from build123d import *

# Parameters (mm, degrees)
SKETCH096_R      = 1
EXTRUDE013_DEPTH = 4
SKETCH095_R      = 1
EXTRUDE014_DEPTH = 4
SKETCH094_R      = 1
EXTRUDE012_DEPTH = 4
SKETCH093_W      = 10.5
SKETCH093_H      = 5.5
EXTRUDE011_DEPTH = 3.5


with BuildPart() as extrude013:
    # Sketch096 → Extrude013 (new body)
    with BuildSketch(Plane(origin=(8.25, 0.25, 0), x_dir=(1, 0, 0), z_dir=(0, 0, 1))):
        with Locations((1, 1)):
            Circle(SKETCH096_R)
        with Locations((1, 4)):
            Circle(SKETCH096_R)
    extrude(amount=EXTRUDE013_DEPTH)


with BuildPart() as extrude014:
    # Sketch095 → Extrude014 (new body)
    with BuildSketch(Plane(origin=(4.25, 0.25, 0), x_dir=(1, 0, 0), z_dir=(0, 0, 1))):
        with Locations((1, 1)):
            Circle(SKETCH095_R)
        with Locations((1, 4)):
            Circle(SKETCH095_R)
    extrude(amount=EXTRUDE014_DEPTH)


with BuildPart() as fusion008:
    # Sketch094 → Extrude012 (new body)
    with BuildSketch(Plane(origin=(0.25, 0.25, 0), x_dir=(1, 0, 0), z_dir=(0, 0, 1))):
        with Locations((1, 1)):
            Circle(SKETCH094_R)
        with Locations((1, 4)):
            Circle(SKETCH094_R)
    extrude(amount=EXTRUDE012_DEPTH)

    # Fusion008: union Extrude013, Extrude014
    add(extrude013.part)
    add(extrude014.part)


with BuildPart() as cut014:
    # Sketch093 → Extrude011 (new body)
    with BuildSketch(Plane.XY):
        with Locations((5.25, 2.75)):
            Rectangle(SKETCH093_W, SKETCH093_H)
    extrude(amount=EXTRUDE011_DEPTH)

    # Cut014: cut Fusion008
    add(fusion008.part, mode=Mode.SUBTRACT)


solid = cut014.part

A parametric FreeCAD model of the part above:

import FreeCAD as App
import Part
import Sketcher
from FreeCAD import Vector


def add_polygon(sketch, points):
    """Adds a closed chain of lines whose ends are joined by coincident constraints."""
    first, n = sketch.GeometryCount, len(points)
    for a, b in zip(points, points[1:] + points[:1]):
        sketch.addGeometry(Part.LineSegment(App.Vector(*a, 0), App.Vector(*b, 0)), False)
    for i in range(n):
        sketch.addConstraint(Sketcher.Constraint("Coincident", first + i, 2, first + (i + 1) % n, 1))

doc = App.newDocument("Part")
params = doc.addObject("Spreadsheet::Sheet", "Params")
for row, (alias, value) in enumerate([
    ("sketch1_diameter", "2 mm"),
    ("pad1_length", "4 mm"),
    ("sketch2_diameter", "2 mm"),
    ("pad2_length", "4 mm"),
    ("sketch3_diameter", "2 mm"),
    ("pad3_length", "4 mm"),
    ("sketch4_width", "10.5 mm"),
    ("sketch4_height", "5.5 mm"),
    ("pad4_length", "3.5 mm"),
], start=1):
    params.set(f"A{row}", alias)
    params.set(f"B{row}", "=" + value)
    params.setAlias(f"B{row}", alias)

body = doc.addObject("PartDesign::Body", "Body")
body.AllowCompound = True

# Sketch on XY plane
sketch1 = body.newObject("Sketcher::SketchObject", "Sketch")
sketch1.AttachmentSupport = (doc.getObject("XY_Plane"), [""])
sketch1.MapMode = "FlatFace"
sketch1.addGeometry(Part.Circle(Vector(9.25, 1.25, 0), Vector(0, 0, 1), 1), False)
sketch1.addGeometry(Part.Circle(Vector(9.25, 4.25, 0), Vector(0, 0, 1), 1), False)
sketch1.addConstraint(Sketcher.Constraint("Equal", 0, 1))
sketch1.addConstraint(Sketcher.Constraint("Vertical", 0, 3, 1, 3))
sketch1.addConstraint(Sketcher.Constraint("Diameter", 0, 2.0))
sketch1.addConstraint(Sketcher.Constraint("DistanceY", 0, 3, 1, 3, 3.0))
sketch1.addConstraint(Sketcher.Constraint("DistanceX", -1, 1, 0, 3, 9.25))
sketch1.addConstraint(Sketcher.Constraint("DistanceY", -1, 1, 0, 3, 1.25))
sketch1.setExpression("Constraints[2]", "Params.sketch1_diameter")
pad1 = body.newObject("PartDesign::Pad", "Pad")
pad1.Profile = sketch1
pad1.setExpression("Length", "Params.pad1_length")
body2 = doc.addObject("PartDesign::Body", "Body001")
body2.AllowCompound = True

# Sketch on XY plane
sketch2 = body2.newObject("Sketcher::SketchObject", "Sketch001")
sketch2.AttachmentSupport = (doc.getObject("XY_Plane001"), [""])
sketch2.MapMode = "FlatFace"
sketch2.addGeometry(Part.Circle(Vector(5.25, 1.25, 0), Vector(0, 0, 1), 1), False)
sketch2.addGeometry(Part.Circle(Vector(5.25, 4.25, 0), Vector(0, 0, 1), 1), False)
sketch2.addConstraint(Sketcher.Constraint("Equal", 0, 1))
sketch2.addConstraint(Sketcher.Constraint("Vertical", 0, 3, 1, 3))
sketch2.addConstraint(Sketcher.Constraint("Diameter", 0, 2.0))
sketch2.addConstraint(Sketcher.Constraint("DistanceY", 0, 3, 1, 3, 3.0))
sketch2.addConstraint(Sketcher.Constraint("DistanceX", -1, 1, 0, 3, 5.25))
sketch2.addConstraint(Sketcher.Constraint("DistanceY", -1, 1, 0, 3, 1.25))
sketch2.setExpression("Constraints[2]", "Params.sketch2_diameter")
pad2 = body2.newObject("PartDesign::Pad", "Pad001")
pad2.Profile = sketch2
pad2.setExpression("Length", "Params.pad2_length")
body3 = doc.addObject("PartDesign::Body", "Body002")
body3.AllowCompound = True

# Sketch on XY plane
sketch3 = body3.newObject("Sketcher::SketchObject", "Sketch002")
sketch3.AttachmentSupport = (doc.getObject("XY_Plane002"), [""])
sketch3.MapMode = "FlatFace"
sketch3.addGeometry(Part.Circle(Vector(1.25, 1.25, 0), Vector(0, 0, 1), 1), False)
sketch3.addGeometry(Part.Circle(Vector(1.25, 4.25, 0), Vector(0, 0, 1), 1), False)
sketch3.addConstraint(Sketcher.Constraint("Equal", 0, 1))
sketch3.addConstraint(Sketcher.Constraint("Vertical", 0, 3, 1, 3))
sketch3.addConstraint(Sketcher.Constraint("Diameter", 0, 2.0))
sketch3.addConstraint(Sketcher.Constraint("DistanceY", 0, 3, 1, 3, 3.0))
sketch3.addConstraint(Sketcher.Constraint("DistanceX", -1, 1, 0, 3, 1.25))
sketch3.addConstraint(Sketcher.Constraint("DistanceY", -1, 1, 0, 3, 1.25))
sketch3.setExpression("Constraints[2]", "Params.sketch3_diameter")
pad3 = body3.newObject("PartDesign::Pad", "Pad002")
pad3.Profile = sketch3
pad3.setExpression("Length", "Params.pad3_length")
doc.recompute()

boolean = body3.newObject("PartDesign::Boolean", "Boolean")
boolean.Type = "Fuse"
boolean.addObjects([body])
doc.recompute()

boolean2 = body3.newObject("PartDesign::Boolean", "Boolean001")
boolean2.Type = "Fuse"
boolean2.addObjects([body2])
body4 = doc.addObject("PartDesign::Body", "Body003")

# Sketch on XY plane
sketch4 = body4.newObject("Sketcher::SketchObject", "Sketch003")
sketch4.AttachmentSupport = (doc.getObject("XY_Plane003"), [""])
sketch4.MapMode = "FlatFace"
add_polygon(sketch4, [(0, 5.5), (0, 0), (10.5, 0), (10.5, 5.5)])  # lines 0-3
sketch4.addConstraint(Sketcher.Constraint("Vertical", 0))
sketch4.addConstraint(Sketcher.Constraint("Horizontal", 1))
sketch4.addConstraint(Sketcher.Constraint("Vertical", 2))
sketch4.addConstraint(Sketcher.Constraint("Horizontal", 3))
sketch4.addConstraint(Sketcher.Constraint("Coincident", 0, 2, -1, 1))
sketch4.addConstraint(Sketcher.Constraint("DistanceX", 1, 1, 1, 2, 10.5))
sketch4.addConstraint(Sketcher.Constraint("DistanceY", 0, 2, 0, 1, 5.5))
sketch4.setExpression("Constraints[9]", "Params.sketch4_width")
sketch4.setExpression("Constraints[10]", "Params.sketch4_height")
pad4 = body4.newObject("PartDesign::Pad", "Pad003")
pad4.Profile = sketch4
pad4.setExpression("Length", "Params.pad4_length")
doc.recompute()

boolean3 = body4.newObject("PartDesign::Boolean", "Boolean002")
boolean3.Type = "Cut"
boolean3.addObjects([body3])

doc.recompute()
